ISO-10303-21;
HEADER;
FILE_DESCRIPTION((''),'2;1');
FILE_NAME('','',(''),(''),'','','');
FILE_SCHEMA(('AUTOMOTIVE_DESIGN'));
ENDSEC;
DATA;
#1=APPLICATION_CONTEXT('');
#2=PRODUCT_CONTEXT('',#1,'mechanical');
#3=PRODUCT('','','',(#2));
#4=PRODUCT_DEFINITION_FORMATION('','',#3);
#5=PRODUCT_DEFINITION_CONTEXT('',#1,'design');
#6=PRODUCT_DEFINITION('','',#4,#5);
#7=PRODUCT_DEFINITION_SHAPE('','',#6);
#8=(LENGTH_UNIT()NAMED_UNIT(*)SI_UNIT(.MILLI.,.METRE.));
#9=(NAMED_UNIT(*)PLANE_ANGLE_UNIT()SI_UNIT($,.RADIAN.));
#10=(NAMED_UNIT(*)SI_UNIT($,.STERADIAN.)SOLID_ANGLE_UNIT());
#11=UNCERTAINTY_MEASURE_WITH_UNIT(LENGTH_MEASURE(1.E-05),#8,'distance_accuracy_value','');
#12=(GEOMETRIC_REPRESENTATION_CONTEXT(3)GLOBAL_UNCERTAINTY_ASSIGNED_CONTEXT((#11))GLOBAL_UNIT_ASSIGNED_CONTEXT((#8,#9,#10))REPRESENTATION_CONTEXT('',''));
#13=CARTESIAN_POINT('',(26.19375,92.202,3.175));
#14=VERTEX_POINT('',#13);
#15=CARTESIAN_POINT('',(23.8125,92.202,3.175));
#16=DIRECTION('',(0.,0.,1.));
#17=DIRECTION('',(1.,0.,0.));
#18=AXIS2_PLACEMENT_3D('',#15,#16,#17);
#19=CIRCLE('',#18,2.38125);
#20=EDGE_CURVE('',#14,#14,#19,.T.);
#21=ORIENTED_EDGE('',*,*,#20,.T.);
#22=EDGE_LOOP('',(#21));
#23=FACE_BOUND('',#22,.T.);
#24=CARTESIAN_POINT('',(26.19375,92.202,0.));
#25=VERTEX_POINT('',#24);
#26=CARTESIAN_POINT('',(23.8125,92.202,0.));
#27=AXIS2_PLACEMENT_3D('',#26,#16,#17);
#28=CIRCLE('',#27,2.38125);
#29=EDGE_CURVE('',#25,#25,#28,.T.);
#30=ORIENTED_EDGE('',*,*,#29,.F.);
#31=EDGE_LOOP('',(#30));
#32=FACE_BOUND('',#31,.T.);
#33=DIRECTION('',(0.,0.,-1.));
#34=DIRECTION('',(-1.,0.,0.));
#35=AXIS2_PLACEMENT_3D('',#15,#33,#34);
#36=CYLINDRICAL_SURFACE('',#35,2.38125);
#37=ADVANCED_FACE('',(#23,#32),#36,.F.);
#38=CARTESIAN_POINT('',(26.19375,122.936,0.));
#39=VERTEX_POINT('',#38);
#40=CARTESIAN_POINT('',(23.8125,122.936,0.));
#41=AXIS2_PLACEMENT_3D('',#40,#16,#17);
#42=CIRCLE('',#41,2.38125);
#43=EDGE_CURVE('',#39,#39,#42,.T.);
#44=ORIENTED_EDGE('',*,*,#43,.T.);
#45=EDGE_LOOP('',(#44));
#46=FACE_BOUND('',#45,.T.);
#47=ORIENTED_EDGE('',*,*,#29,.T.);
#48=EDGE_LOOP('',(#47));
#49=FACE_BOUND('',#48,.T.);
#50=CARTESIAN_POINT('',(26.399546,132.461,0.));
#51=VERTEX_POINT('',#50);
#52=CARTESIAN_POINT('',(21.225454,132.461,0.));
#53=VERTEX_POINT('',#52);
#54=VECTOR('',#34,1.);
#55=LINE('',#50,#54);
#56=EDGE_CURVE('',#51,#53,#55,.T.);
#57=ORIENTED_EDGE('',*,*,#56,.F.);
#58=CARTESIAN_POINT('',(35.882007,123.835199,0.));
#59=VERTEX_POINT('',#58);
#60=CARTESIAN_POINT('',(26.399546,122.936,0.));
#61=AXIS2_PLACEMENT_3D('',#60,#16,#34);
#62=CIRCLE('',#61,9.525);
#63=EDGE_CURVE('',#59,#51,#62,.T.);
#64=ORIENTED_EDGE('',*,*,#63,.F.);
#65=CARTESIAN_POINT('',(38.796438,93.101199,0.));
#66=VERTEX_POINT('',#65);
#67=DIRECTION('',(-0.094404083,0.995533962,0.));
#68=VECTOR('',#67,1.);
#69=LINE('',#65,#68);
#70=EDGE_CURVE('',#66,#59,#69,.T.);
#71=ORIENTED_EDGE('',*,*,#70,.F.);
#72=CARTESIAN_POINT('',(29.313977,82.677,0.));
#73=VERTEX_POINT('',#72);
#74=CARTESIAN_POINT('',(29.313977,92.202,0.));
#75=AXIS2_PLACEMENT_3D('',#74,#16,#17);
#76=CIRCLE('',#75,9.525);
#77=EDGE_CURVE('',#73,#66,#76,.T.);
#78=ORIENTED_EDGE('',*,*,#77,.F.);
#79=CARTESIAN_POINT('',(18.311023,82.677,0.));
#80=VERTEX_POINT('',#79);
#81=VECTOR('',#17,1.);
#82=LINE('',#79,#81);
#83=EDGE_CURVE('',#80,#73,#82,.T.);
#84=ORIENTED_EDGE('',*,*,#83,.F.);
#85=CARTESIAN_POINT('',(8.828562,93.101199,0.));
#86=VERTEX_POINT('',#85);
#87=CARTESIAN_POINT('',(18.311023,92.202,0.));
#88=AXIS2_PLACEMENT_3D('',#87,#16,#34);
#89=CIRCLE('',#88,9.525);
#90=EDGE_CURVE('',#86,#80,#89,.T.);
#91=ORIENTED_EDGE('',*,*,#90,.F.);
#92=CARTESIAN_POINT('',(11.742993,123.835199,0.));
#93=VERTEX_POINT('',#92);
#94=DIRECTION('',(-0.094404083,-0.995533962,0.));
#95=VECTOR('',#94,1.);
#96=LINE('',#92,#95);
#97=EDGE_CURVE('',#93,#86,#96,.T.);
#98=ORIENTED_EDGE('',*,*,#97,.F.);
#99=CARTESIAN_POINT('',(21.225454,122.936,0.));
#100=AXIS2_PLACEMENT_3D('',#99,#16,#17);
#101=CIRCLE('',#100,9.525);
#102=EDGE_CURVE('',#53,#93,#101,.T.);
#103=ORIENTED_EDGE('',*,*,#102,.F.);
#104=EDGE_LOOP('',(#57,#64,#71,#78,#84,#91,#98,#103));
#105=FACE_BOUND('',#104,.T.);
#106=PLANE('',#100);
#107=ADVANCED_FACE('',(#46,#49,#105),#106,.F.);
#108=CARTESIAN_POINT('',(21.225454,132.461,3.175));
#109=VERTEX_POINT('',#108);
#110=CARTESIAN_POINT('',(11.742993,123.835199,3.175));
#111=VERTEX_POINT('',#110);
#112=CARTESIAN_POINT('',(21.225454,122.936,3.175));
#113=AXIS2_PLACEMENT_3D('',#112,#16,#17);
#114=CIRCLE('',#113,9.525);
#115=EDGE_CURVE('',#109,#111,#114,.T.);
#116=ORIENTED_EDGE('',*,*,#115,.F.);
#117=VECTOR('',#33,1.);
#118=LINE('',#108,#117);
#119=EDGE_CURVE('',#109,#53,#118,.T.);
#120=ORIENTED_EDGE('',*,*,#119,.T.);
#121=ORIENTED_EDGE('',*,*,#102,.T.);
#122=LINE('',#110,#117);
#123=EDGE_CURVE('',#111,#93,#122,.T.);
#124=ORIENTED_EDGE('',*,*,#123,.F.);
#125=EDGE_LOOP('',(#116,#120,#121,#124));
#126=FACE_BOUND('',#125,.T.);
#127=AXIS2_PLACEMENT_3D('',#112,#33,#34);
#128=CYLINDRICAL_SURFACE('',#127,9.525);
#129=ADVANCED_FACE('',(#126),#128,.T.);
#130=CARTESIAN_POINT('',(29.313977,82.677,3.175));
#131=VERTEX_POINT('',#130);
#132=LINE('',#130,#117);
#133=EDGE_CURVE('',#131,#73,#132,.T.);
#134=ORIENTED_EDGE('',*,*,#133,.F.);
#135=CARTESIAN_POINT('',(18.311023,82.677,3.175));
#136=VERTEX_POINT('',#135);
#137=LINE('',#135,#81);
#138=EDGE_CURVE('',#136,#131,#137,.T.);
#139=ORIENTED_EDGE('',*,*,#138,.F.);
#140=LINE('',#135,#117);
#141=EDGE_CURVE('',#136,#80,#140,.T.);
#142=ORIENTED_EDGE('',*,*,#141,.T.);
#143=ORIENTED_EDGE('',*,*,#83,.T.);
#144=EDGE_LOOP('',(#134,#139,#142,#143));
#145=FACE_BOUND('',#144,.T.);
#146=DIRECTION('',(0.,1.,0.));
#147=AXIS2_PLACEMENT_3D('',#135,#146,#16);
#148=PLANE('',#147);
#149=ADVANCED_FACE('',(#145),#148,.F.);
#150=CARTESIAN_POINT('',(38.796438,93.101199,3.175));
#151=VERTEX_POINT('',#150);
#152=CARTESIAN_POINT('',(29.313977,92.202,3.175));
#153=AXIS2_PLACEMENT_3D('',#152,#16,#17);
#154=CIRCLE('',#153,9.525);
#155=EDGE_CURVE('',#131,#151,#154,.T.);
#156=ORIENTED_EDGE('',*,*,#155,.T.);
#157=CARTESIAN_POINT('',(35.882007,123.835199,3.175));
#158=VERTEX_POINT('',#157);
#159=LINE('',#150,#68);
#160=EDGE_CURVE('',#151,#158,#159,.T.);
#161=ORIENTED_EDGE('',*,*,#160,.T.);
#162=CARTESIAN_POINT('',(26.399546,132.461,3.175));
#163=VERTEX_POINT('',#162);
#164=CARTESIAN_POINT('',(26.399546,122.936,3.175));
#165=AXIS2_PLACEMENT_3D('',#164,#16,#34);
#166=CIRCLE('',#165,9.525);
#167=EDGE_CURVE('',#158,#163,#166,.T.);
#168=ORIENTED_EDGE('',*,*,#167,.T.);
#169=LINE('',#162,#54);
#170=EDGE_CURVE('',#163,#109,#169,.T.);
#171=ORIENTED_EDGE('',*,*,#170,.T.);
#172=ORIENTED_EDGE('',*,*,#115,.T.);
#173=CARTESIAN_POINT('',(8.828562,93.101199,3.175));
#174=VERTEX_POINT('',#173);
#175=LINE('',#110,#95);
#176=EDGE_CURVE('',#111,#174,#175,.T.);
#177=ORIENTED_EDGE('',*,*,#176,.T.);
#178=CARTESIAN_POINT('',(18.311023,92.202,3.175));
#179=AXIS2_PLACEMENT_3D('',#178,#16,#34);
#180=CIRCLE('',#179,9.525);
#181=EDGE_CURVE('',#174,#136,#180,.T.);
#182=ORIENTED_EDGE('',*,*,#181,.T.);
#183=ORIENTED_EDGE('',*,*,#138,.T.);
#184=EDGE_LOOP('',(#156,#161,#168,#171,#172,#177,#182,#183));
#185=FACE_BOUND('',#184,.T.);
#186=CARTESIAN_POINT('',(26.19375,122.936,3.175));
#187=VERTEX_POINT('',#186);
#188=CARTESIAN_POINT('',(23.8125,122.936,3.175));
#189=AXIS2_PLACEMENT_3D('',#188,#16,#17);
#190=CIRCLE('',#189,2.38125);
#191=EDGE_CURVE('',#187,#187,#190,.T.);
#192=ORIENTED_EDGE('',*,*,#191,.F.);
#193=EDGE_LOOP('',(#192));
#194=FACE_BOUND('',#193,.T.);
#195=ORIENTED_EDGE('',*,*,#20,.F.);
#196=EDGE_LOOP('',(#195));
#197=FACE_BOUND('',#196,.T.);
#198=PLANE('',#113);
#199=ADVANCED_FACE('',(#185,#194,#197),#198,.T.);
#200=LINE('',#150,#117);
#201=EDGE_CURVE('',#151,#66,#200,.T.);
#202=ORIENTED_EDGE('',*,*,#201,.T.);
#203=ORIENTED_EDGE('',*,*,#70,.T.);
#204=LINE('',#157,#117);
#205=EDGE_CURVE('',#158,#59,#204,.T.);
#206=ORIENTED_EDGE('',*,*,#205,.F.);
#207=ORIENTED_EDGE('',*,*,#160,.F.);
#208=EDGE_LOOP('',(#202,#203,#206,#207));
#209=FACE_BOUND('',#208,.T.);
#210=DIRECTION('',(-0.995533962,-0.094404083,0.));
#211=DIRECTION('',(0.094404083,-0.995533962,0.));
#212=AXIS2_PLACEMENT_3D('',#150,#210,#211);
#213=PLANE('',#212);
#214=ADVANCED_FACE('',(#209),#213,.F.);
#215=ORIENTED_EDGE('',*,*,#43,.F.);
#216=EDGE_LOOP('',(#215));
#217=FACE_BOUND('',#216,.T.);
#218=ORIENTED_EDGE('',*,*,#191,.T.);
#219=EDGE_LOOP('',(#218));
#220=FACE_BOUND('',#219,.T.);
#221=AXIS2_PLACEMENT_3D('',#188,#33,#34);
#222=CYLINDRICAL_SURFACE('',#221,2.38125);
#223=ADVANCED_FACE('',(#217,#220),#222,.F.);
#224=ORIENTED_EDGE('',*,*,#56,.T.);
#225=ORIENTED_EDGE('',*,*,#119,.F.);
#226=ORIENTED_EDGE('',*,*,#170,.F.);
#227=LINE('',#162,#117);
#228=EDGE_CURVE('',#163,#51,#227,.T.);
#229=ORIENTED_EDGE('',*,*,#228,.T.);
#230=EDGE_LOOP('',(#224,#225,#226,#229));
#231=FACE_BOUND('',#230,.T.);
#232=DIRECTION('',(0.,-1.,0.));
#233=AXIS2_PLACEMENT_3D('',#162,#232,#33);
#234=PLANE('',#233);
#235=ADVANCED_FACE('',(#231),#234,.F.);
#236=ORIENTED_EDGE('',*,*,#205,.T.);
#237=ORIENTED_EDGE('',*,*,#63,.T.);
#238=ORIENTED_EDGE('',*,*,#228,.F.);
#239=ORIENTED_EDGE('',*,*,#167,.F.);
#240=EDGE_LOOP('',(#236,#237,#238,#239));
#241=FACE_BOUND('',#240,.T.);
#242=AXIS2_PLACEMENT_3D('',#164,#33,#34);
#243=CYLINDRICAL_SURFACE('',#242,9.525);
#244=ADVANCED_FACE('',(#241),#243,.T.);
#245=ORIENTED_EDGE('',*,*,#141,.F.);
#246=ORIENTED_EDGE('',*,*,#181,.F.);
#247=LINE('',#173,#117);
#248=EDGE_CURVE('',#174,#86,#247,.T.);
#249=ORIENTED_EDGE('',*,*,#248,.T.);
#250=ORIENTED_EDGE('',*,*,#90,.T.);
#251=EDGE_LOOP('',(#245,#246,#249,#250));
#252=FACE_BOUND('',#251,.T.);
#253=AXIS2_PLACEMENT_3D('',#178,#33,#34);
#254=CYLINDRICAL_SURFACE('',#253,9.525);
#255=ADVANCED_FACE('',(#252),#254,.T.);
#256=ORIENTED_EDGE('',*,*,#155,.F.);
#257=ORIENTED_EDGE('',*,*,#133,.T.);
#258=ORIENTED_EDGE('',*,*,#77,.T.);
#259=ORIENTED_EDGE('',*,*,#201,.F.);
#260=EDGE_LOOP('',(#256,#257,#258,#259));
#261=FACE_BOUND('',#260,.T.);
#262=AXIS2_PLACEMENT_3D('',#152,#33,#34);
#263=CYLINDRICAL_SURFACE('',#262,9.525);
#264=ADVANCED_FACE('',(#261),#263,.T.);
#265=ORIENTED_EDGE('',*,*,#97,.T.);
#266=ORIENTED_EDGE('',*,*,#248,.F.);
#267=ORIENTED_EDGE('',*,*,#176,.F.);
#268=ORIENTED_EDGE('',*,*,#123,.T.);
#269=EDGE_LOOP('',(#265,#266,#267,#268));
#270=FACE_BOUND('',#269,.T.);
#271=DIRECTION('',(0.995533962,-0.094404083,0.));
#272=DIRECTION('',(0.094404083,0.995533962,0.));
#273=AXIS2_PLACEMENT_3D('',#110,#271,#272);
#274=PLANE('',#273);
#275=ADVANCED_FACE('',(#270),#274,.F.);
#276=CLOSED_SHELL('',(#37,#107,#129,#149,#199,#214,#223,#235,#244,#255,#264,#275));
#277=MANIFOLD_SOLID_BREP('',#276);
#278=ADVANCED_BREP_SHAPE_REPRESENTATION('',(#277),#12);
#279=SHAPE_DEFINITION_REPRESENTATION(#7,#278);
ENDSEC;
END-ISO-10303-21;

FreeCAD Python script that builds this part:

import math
import FreeCAD as App
import Part
import Sketcher
Q = App.Units.Quantity

doc = App.newDocument("Part")
params = doc.addObject("Spreadsheet::Sheet", "Params")
for row, (alias, value) in enumerate([
    ("sketch1_diameter", "0.1875 in"),
    ("sketch1_radius", "0.375 in"),
    ("pad1_length", "0.125 in"),
], start=1):
    params.set(f"A{row}", alias)
    params.set(f"B{row}", "=" + value)
    params.setAlias(f"B{row}", alias)

body = doc.addObject("PartDesign::Body", "Body")

sketch1 = doc.addObject("Sketcher::SketchObject", "Sketch")
body.addObject(sketch1)
sketch1.AttachmentSupport = (doc.XY_Plane, [""])
sketch1.MapMode = "FlatFace"
sketch1.addGeometry(Part.LineSegment(App.Vector(38.796438, 93.101199, 0), App.Vector(35.882007, 123.835199, 0)), False)
sketch1.addGeometry(Part.ArcOfCircle(Part.Circle(App.Vector(26.399546, 122.936, 0), App.Vector(0, 0, 1), 9.525), math.radians(5.417022), math.radians(90)), False)
sketch1.addGeometry(Part.LineSegment(App.Vector(26.399546, 132.461, 0), App.Vector(21.225454, 132.461, 0)), False)
sketch1.addGeometry(Part.ArcOfCircle(Part.Circle(App.Vector(21.225454, 122.936, 0), App.Vector(0, 0, 1), 9.525), math.radians(90), math.radians(174.582978)), False)
sketch1.addGeometry(Part.LineSegment(App.Vector(11.742993, 123.835199, 0), App.Vector(8.828562, 93.101199, 0)), False)
sketch1.addGeometry(Part.ArcOfCircle(Part.Circle(App.Vector(18.311023, 92.202, 0), App.Vector(0, 0, 1), 9.525), math.radians(174.582978), math.radians(270)), False)
sketch1.addGeometry(Part.LineSegment(App.Vector(18.311023, 82.677, 0), App.Vector(29.313977, 82.677, 0)), False)
sketch1.addGeometry(Part.ArcOfCircle(Part.Circle(App.Vector(29.313977, 92.202, 0), App.Vector(0, 0, 1), 9.525), math.radians(-90), math.radians(5.417022)), False)
sketch1.addGeometry(Part.Circle(App.Vector(23.8125, 92.202, 0), App.Vector(0, 0, 1), 2.38125), False)
sketch1.addGeometry(Part.Circle(App.Vector(23.8125, 122.936, 0), App.Vector(0, 0, 1), 2.38125), False)
sketch1.addConstraint(Sketcher.Constraint("Tangent", 0, 2, 1, 1))
sketch1.addConstraint(Sketcher.Constraint("Tangent", 1, 2, 2, 1))
sketch1.addConstraint(Sketcher.Constraint("Tangent", 2, 2, 3, 1))
sketch1.addConstraint(Sketcher.Constraint("Tangent", 3, 2, 4, 1))
sketch1.addConstraint(Sketcher.Constraint("Tangent", 4, 2, 5, 1))
sketch1.addConstraint(Sketcher.Constraint("Tangent", 5, 2, 6, 1))
sketch1.addConstraint(Sketcher.Constraint("Tangent", 6, 2, 7, 1))
sketch1.addConstraint(Sketcher.Constraint("Tangent", 7, 2, 0, 1))
sketch1.addConstraint(Sketcher.Constraint("Horizontal", 2))
sketch1.addConstraint(Sketcher.Constraint("Horizontal", 6))
sketch1.addConstraint(Sketcher.Constraint("Equal", 1, 3))
sketch1.addConstraint(Sketcher.Constraint("Equal", 3, 5))
sketch1.addConstraint(Sketcher.Constraint("Equal", 5, 7))
sketch1.addConstraint(Sketcher.Constraint("Equal", 8, 9))
sketch1.addConstraint(Sketcher.Constraint("Horizontal", 7, 3, 8, 3))
sketch1.addConstraint(Sketcher.Constraint("Horizontal", 3, 3, 9, 3))
sketch1.addConstraint(Sketcher.Constraint("Horizontal", 0, 2, 3, 2))
sketch1.addConstraint(Sketcher.Constraint("Vertical", 8, 3, 9, 3))
sketch1.addConstraint(Sketcher.Constraint("Diameter", 8, Q("0.1875 in")))
sketch1.addConstraint(Sketcher.Constraint("Radius", 1, Q("0.375 in")))
sketch1.addConstraint(Sketcher.Constraint("DistanceY", -1, 1, 1, 3, Q("4.84 in")))
sketch1.addConstraint(Sketcher.Constraint("DistanceY", -1, 1, 5, 3, Q("3.63 in")))
sketch1.addConstraint(Sketcher.Constraint("DistanceX", -1, 1, 8, 3, Q("0.9375 in")))
sketch1.addConstraint(Sketcher.Constraint("DistanceY", -1, 1, 0, 2, Q("123.835199 mm")))
sketch1.addConstraint(Sketcher.Constraint("DistanceX", 2, 2, 2, 1, Q("5.174092 mm")))
sketch1.addConstraint(Sketcher.Constraint("DistanceX", -1, 1, 4, 2, Q("8.828562 mm")))
sketch1.setExpression("Constraints[18]", "Params.sketch1_diameter")
sketch1.setExpression("Constraints[19]", "Params.sketch1_radius")
pad1 = doc.addObject("PartDesign::Pad", "Pad")
body.addObject(pad1)
pad1.Profile = sketch1
pad1.setExpression("Length", "Params.pad1_length")

doc.recompute()
